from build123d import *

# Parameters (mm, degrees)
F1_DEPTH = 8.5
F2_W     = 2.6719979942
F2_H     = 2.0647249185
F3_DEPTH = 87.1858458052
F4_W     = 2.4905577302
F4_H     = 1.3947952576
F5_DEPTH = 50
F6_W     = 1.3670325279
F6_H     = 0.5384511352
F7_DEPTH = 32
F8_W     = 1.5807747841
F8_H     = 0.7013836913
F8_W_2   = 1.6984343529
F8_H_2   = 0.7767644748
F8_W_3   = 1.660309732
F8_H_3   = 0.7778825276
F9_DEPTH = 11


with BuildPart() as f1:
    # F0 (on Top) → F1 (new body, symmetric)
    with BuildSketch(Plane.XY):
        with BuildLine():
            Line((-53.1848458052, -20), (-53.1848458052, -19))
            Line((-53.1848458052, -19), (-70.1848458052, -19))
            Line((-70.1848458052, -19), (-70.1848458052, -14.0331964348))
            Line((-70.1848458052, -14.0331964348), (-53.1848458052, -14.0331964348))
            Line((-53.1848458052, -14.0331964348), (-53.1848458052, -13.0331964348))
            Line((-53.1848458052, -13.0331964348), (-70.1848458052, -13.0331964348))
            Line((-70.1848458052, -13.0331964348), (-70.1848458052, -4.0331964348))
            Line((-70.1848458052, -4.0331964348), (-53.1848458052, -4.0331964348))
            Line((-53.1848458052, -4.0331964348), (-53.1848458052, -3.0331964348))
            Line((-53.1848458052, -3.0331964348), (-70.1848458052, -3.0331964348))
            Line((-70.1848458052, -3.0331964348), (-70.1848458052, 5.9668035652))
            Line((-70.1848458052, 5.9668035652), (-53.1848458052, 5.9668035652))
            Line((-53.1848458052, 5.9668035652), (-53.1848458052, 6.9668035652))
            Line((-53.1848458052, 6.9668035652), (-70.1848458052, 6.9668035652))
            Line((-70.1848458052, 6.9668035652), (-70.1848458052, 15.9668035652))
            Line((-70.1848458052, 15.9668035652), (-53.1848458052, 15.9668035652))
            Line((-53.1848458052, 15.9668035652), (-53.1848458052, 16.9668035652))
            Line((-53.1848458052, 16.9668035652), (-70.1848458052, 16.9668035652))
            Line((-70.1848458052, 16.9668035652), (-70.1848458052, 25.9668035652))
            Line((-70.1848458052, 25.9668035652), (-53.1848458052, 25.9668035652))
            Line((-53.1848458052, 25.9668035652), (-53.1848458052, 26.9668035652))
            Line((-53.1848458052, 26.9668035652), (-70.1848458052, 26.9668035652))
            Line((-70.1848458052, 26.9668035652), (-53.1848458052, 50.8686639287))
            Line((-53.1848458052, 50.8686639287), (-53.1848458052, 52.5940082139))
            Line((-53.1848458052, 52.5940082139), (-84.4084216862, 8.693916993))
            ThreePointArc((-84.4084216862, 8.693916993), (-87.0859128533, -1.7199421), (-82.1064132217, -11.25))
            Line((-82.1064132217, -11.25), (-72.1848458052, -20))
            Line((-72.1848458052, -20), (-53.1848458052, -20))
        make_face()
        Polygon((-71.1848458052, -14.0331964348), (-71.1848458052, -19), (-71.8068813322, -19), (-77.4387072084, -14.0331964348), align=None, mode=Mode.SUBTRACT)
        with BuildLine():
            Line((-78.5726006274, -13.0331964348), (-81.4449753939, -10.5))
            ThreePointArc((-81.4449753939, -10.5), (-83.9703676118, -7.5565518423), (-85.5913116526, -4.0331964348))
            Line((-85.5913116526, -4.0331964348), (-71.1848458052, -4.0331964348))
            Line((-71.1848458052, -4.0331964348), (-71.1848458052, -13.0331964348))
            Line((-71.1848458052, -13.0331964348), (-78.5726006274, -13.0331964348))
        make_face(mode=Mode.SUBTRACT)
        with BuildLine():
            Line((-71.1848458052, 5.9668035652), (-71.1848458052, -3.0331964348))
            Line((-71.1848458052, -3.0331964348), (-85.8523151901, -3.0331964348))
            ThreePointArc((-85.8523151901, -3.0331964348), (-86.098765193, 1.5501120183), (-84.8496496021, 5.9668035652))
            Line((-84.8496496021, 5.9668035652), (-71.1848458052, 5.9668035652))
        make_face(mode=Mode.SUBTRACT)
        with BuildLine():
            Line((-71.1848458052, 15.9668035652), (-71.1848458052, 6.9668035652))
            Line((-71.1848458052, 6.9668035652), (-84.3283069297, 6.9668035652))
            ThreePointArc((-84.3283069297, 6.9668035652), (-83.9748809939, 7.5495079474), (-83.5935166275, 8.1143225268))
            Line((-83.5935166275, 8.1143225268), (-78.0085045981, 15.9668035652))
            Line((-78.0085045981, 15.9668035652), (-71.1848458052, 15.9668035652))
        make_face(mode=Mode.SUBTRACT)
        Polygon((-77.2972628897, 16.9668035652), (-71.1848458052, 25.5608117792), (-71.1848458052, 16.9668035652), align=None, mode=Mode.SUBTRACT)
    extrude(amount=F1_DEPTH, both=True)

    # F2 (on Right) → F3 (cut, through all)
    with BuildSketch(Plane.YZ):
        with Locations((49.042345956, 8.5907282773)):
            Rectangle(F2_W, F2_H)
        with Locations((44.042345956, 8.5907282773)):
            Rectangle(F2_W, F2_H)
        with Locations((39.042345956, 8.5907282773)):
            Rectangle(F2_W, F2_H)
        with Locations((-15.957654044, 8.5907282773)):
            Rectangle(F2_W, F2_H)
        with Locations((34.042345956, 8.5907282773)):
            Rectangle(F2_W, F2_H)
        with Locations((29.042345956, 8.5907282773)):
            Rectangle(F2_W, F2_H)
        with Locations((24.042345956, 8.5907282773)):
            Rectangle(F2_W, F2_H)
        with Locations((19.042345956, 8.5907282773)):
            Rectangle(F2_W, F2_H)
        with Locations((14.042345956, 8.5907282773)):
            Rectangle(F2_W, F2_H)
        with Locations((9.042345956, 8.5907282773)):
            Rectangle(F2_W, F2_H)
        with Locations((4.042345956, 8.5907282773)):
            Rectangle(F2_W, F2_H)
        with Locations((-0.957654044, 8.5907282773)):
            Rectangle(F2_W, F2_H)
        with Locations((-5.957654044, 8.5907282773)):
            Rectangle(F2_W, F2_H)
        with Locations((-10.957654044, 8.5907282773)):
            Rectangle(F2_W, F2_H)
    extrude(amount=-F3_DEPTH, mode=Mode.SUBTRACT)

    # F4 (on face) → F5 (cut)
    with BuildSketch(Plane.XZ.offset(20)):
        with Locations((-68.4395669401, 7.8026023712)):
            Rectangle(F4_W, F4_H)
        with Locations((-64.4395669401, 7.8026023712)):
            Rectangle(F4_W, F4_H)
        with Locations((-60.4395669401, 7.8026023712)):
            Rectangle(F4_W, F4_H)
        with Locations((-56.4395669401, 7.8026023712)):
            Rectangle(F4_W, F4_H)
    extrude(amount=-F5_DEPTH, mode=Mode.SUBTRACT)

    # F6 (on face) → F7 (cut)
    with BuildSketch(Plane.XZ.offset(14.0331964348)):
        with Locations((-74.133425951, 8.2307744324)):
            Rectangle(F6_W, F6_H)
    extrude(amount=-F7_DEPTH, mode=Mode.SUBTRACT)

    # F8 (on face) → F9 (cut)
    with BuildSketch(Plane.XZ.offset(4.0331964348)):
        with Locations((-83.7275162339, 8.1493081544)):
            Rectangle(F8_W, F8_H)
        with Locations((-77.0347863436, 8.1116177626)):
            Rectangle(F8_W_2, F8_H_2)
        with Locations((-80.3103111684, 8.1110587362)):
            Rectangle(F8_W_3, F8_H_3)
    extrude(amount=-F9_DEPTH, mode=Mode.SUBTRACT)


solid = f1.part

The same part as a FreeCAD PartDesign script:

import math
import FreeCAD as App
import Part
import Sketcher

doc = App.newDocument("Part")
params = doc.addObject("Spreadsheet::Sheet", "Params")
for row, (alias, value) in enumerate([
    ("sketch1_radius", "15 mm"),
    ("sketch1_radius2", "14 mm"),
    ("sketch1_width", "17 mm"),
    ("sketch1_width2", "19 mm"),
    ("sketch1_height", "1 mm"),
    ("pad1_length", "17 mm"),
    ("pocket2_length", "50 mm"),
    ("pocket3_length", "32 mm"),
    ("pocket4_length", "11 mm"),
], start=1):
    params.set(f"A{row}", alias)
    params.set(f"B{row}", "=" + value)
    params.setAlias(f"B{row}", alias)

body = doc.addObject("PartDesign::Body", "Body")

sketch1 = doc.addObject("Sketcher::SketchObject", "Sketch")
body.addObject(sketch1)
sketch1.AttachmentSupport = (doc.XY_Plane, [""])
sketch1.MapMode = "FlatFace"
sketch1.addGeometry([
    Part.LineSegment(App.Vector(-53.184846, -20, 0), App.Vector(-53.184846, -19, 0)),
    Part.LineSegment(App.Vector(-53.184846, -19, 0), App.Vector(-70.184846, -19, 0)),
    Part.LineSegment(App.Vector(-70.184846, -19, 0), App.Vector(-70.184846, -14.033196, 0)),
    Part.LineSegment(App.Vector(-70.184846, -14.033196, 0), App.Vector(-53.184846, -14.033196, 0)),
    Part.LineSegment(App.Vector(-53.184846, -14.033196, 0), App.Vector(-53.184846, -13.033196, 0)),
    Part.LineSegment(App.Vector(-53.184846, -13.033196, 0), App.Vector(-70.184846, -13.033196, 0)),
    Part.LineSegment(App.Vector(-70.184846, -13.033196, 0), App.Vector(-70.184846, -4.033196, 0)),
    Part.LineSegment(App.Vector(-70.184846, -4.033196, 0), App.Vector(-53.184846, -4.033196, 0)),
    Part.LineSegment(App.Vector(-53.184846, -4.033196, 0), App.Vector(-53.184846, -3.033196, 0)),
    Part.LineSegment(App.Vector(-53.184846, -3.033196, 0), App.Vector(-70.184846, -3.033196, 0)),
    Part.LineSegment(App.Vector(-70.184846, -3.033196, 0), App.Vector(-70.184846, 5.966804, 0)),
    Part.LineSegment(App.Vector(-70.184846, 5.966804, 0), App.Vector(-53.184846, 5.966804, 0)),
    Part.LineSegment(App.Vector(-53.184846, 5.966804, 0), App.Vector(-53.184846, 6.966804, 0)),
    Part.LineSegment(App.Vector(-53.184846, 6.966804, 0), App.Vector(-70.184846, 6.966804, 0)),
    Part.LineSegment(App.Vector(-70.184846, 6.966804, 0), App.Vector(-70.184846, 15.966804, 0)),
    Part.LineSegment(App.Vector(-70.184846, 15.966804, 0), App.Vector(-53.184846, 15.966804, 0)),
    Part.LineSegment(App.Vector(-53.184846, 15.966804, 0), App.Vector(-53.184846, 16.966804, 0)),
    Part.LineSegment(App.Vector(-53.184846, 16.966804, 0), App.Vector(-70.184846, 16.966804, 0)),
    Part.LineSegment(App.Vector(-70.184846, 16.966804, 0), App.Vector(-70.184846, 25.966804, 0)),
    Part.LineSegment(App.Vector(-70.184846, 25.966804, 0), App.Vector(-53.184846, 25.966804, 0)),
    Part.LineSegment(App.Vector(-53.184846, 25.966804, 0), App.Vector(-53.184846, 26.966804, 0)),
    Part.LineSegment(App.Vector(-53.184846, 26.966804, 0), App.Vector(-70.184846, 26.966804, 0)),
    Part.LineSegment(App.Vector(-70.184846, 26.966804, 0), App.Vector(-53.184846, 50.868664, 0)),
    Part.LineSegment(App.Vector(-53.184846, 50.868664, 0), App.Vector(-53.184846, 52.594008, 0)),
    Part.LineSegment(App.Vector(-53.184846, 52.594008, 0), App.Vector(-84.408422, 8.693917, 0)),
    Part.ArcOfCircle(Part.Circle(App.Vector(-72.184846, 0, 0), App.Vector(0, 0, 1), 15), math.radians(144.577975), math.radians(228.590378)),
    Part.LineSegment(App.Vector(-82.106413, -11.25, 0), App.Vector(-72.184846, -20, 0)),
    Part.LineSegment(App.Vector(-72.184846, -20, 0), App.Vector(-53.184846, -20, 0)),
    Part.LineSegment(App.Vector(-71.184846, -13.033196, 0), App.Vector(-78.572601, -13.033196, 0)),
    Part.LineSegment(App.Vector(-78.572601, -13.033196, 0), App.Vector(-81.444975, -10.5, 0)),
    Part.ArcOfCircle(Part.Circle(App.Vector(-72.184846, 0, 0), App.Vector(0, 0, 1), 14), math.radians(-163.25663), math.radians(-131.409622)),
    Part.LineSegment(App.Vector(-85.591312, -4.033196, 0), App.Vector(-71.184846, -4.033196, 0)),
    Part.LineSegment(App.Vector(-71.184846, -4.033196, 0), App.Vector(-71.184846, -13.033196, 0)),
    Part.LineSegment(App.Vector(-77.438707, -14.033196, 0), App.Vector(-71.184846, -14.033196, 0)),
    Part.LineSegment(App.Vector(-71.184846, -14.033196, 0), App.Vector(-71.184846, -19, 0)),
    Part.LineSegment(App.Vector(-71.184846, -19, 0), App.Vector(-71.806881, -19, 0)),
    Part.LineSegment(App.Vector(-71.806881, -19, 0), App.Vector(-77.438707, -14.033196, 0)),
    Part.LineSegment(App.Vector(-84.84965, 5.966804, 0), App.Vector(-71.184846, 5.966804, 0)),
    Part.LineSegment(App.Vector(-71.184846, 5.966804, 0), App.Vector(-71.184846, -3.033196, 0)),
    Part.LineSegment(App.Vector(-71.184846, -3.033196, 0), App.Vector(-85.852315, -3.033196, 0)),
    Part.ArcOfCircle(Part.Circle(App.Vector(-72.184846, 0, 0), App.Vector(0, 0, 1), 14), math.radians(154.773341), math.radians(192.512751)),
    Part.LineSegment(App.Vector(-78.008505, 15.966804, 0), App.Vector(-71.184846, 15.966804, 0)),
    Part.LineSegment(App.Vector(-71.184846, 15.966804, 0), App.Vector(-71.184846, 6.966804, 0)),
    Part.LineSegment(App.Vector(-71.184846, 6.966804, 0), App.Vector(-84.328307, 6.966804, 0)),
    Part.ArcOfCircle(Part.Circle(App.Vector(-72.184846, 0, 0), App.Vector(0, 0, 1), 14), math.radians(144.577975), math.radians(150.156752)),
    Part.LineSegment(App.Vector(-83.593517, 8.114323, 0), App.Vector(-78.008505, 15.966804, 0)),
    Part.LineSegment(App.Vector(-71.184846, 16.966804, 0), App.Vector(-77.297263, 16.966804, 0)),
    Part.LineSegment(App.Vector(-77.297263, 16.966804, 0), App.Vector(-71.184846, 25.560812, 0)),
    Part.LineSegment(App.Vector(-71.184846, 25.560812, 0), App.Vector(-71.184846, 16.966804, 0)),
], False)
sketch1.addConstraint([
    Sketcher.Constraint("Coincident", 0, 2, 1, 1),
    Sketcher.Constraint("Coincident", 1, 2, 2, 1),
    Sketcher.Constraint("Coincident", 2, 2, 3, 1),
    Sketcher.Constraint("Coincident", 3, 2, 4, 1),
    Sketcher.Constraint("Coincident", 4, 2, 5, 1),
    Sketcher.Constraint("Coincident", 5, 2, 6, 1),
    Sketcher.Constraint("Coincident", 6, 2, 7, 1),
    Sketcher.Constraint("Coincident", 7, 2, 8, 1),
    Sketcher.Constraint("Coincident", 8, 2, 9, 1),
    Sketcher.Constraint("Coincident", 9, 2, 10, 1),
    Sketcher.Constraint("Coincident", 10, 2, 11, 1),
    Sketcher.Constraint("Coincident", 11, 2, 12, 1),
    Sketcher.Constraint("Coincident", 12, 2, 13, 1),
    Sketcher.Constraint("Coincident", 13, 2, 14, 1),
    Sketcher.Constraint("Coincident", 14, 2, 15, 1),
    Sketcher.Constraint("Coincident", 15, 2, 16, 1),
    Sketcher.Constraint("Coincident", 16, 2, 17, 1),
    Sketcher.Constraint("Coincident", 17, 2, 18, 1),
    Sketcher.Constraint("Coincident", 18, 2, 19, 1),
    Sketcher.Constraint("Coincident", 19, 2, 20, 1),
    Sketcher.Constraint("Coincident", 20, 2, 21, 1),
    Sketcher.Constraint("Coincident", 21, 2, 22, 1),
    Sketcher.Constraint("Coincident", 22, 2, 23, 1),
    Sketcher.Constraint("Coincident", 23, 2, 24, 1),
    Sketcher.Constraint("Tangent", 24, 2, 25, 1),
    Sketcher.Constraint("Tangent", 25, 2, 26, 1),
    Sketcher.Constraint("Coincident", 26, 2, 27, 1),
    Sketcher.Constraint("Coincident", 27, 2, 0, 1),
    Sketcher.Constraint("Coincident", 28, 2, 29, 1),
    Sketcher.Constraint("Tangent", 29, 2, 30, 2),
    Sketcher.Constraint("Coincident", 30, 1, 31, 1),
    Sketcher.Constraint("Coincident", 31, 2, 32, 1),
    Sketcher.Constraint("Coincident", 32, 2, 28, 1),
    Sketcher.Constraint("Coincident", 33, 2, 34, 1),
    Sketcher.Constraint("Coincident", 34, 2, 35, 1),
    Sketcher.Constraint("Coincident", 35, 2, 36, 1),
    Sketcher.Constraint("Coincident", 36, 2, 33, 1),
    Sketcher.Constraint("Coincident", 37, 2, 38, 1),
    Sketcher.Constraint("Coincident", 38, 2, 39, 1),
    Sketcher.Constraint("Coincident", 39, 2, 40, 2),
    Sketcher.Constraint("Coincident", 40, 1, 37, 1),
    Sketcher.Constraint("Coincident", 41, 2, 42, 1),
    Sketcher.Constraint("Coincident", 42, 2, 43, 1),
    Sketcher.Constraint("Coincident", 43, 2, 44, 2),
    Sketcher.Constraint("Tangent", 44, 1, 45, 1),
    Sketcher.Constraint("Coincident", 45, 2, 41, 1),
    Sketcher.Constraint("Coincident", 46, 2, 47, 1),
    Sketcher.Constraint("Coincident", 47, 2, 48, 1),
    Sketcher.Constraint("Coincident", 48, 2, 46, 1),
    Sketcher.Constraint("Vertical", 0),
    Sketcher.Constraint("Horizontal", 1),
    Sketcher.Constraint("Vertical", 2),
    Sketcher.Constraint("Horizontal", 3),
    Sketcher.Constraint("Vertical", 4),
    Sketcher.Constraint("Horizontal", 5),
    Sketcher.Constraint("Vertical", 6),
    Sketcher.Constraint("Horizontal", 7),
    Sketcher.Constraint("Vertical", 8),
    Sketcher.Constraint("Horizontal", 9),
    Sketcher.Constraint("Vertical", 10),
    Sketcher.Constraint("Horizontal", 11),
    Sketcher.Constraint("Vertical", 12),
    Sketcher.Constraint("Horizontal", 13),
    Sketcher.Constraint("Vertical", 14),
    Sketcher.Constraint("Horizontal", 15),
    Sketcher.Constraint("Vertical", 16),
    Sketcher.Constraint("Horizontal", 17),
    Sketcher.Constraint("Vertical", 18),
    Sketcher.Constraint("Horizontal", 19),
    Sketcher.Constraint("Vertical", 20),
    Sketcher.Constraint("Horizontal", 21),
    Sketcher.Constraint("Vertical", 23),
    Sketcher.Constraint("Horizontal", 27),
    Sketcher.Constraint("Horizontal", 28),
    Sketcher.Constraint("Horizontal", 31),
    Sketcher.Constraint("Vertical", 32),
    Sketcher.Constraint("Horizontal", 33),
    Sketcher.Constraint("Vertical", 34),
    Sketcher.Constraint("Horizontal", 35),
    Sketcher.Constraint("Horizontal", 37),
    Sketcher.Constraint("Vertical", 38),
    Sketcher.Constraint("Horizontal", 39),
    Sketcher.Constraint("Horizontal", 41),
    Sketcher.Constraint("Vertical", 42),
    Sketcher.Constraint("Horizontal", 43),
    Sketcher.Constraint("Horizontal", 46),
    Sketcher.Constraint("Vertical", 48),
    Sketcher.Constraint("Coincident", 30, 3, 25, 3),
    Sketcher.Constraint("Coincident", 40, 3, 25, 3),
    Sketcher.Constraint("Coincident", 44, 3, 25, 3),
    Sketcher.Constraint("Equal", 30, 40),
    Sketcher.Constraint("Equal", 40, 44),
    Sketcher.Constraint("PointOnObject", 25, 3, -1),
    Sketcher.Constraint("Parallel", 22, 24),
    Sketcher.Constraint("Parallel", 26, 29),
    Sketcher.Constraint("Parallel", 29, 36),
    Sketcher.Constraint("Parallel", 24, 45),
    Sketcher.Constraint("Parallel", 45, 47),
    Sketcher.Constraint("Horizontal", 5, 2, 28, 2),
    Sketcher.Constraint("Horizontal", 7, 2, 30, 1),
    Sketcher.Constraint("Horizontal", 3, 2, 33, 2),
    Sketcher.Constraint("Horizontal", 1, 2, 34, 2),
    Sketcher.Constraint("Horizontal", 11, 2, 37, 2),
    Sketcher.Constraint("Horizontal", 9, 2, 38, 2),
    Sketcher.Constraint("Horizontal", 15, 2, 41, 2),
    Sketcher.Constraint("Horizontal", 13, 2, 42, 2),
    Sketcher.Constraint("Horizontal", 17, 2, 46, 2),
    Sketcher.Constraint("Vertical", 0, 2, 3, 2),
    Sketcher.Constraint("Vertical", 2, 2, 5, 2),
    Sketcher.Constraint("Vertical", 4, 2, 7, 2),
    Sketcher.Constraint("Vertical", 6, 2, 9, 2),
    Sketcher.Constraint("Vertical", 8, 2, 11, 2),
    Sketcher.Constraint("Vertical", 10, 2, 13, 2),
    Sketcher.Constraint("Vertical", 12, 2, 15, 2),
    Sketcher.Constraint("Vertical", 14, 2, 17, 2),
    Sketcher.Constraint("Vertical", 16, 2, 19, 2),
    Sketcher.Constraint("Vertical", 18, 2, 21, 2),
    Sketcher.Constraint("Vertical", 20, 2, 22, 2),
    Sketcher.Constraint("Vertical", 44, 3, 26, 2),
    Sketcher.Constraint("Vertical", 32, 2, 33, 2),
    Sketcher.Constraint("Vertical", 34, 2, 37, 2),
    Sketcher.Constraint("Vertical", 38, 2, 41, 2),
    Sketcher.Constraint("Vertical", 42, 2, 47, 2),
    Sketcher.Constraint("Equal", 0, 4),
    Sketcher.Constraint("Equal", 4, 8),
    Sketcher.Constraint("Equal", 6, 10),
    Sketcher.Constraint("Equal", 8, 12),
    Sketcher.Constraint("Equal", 10, 14),
    Sketcher.Constraint("Equal", 12, 16),
    Sketcher.Constraint("Equal", 14, 18),
    Sketcher.Constraint("Equal", 16, 20),
    Sketcher.Constraint("Radius", 25, 15.0),
    Sketcher.Constraint("Radius", 30, 14.0),
    Sketcher.Constraint("DistanceX", 1, 2, 1, 1, 17.0),
    Sketcher.Constraint("DistanceX", 27, 1, 27, 2, 19.0),
    Sketcher.Constraint("DistanceY", 0, 1, 0, 2, 1.0),
    Sketcher.Constraint("DistanceY", 6, 1, 6, 2, 9.0),
    Sketcher.Constraint("DistanceY", 0, 2, -1, 1, 19.0),
    Sketcher.Constraint("DistanceX", 31, 2, 6, 2, 1.0),
    Sketcher.Constraint("Distance", 36, 7.509101),
    Sketcher.Constraint("DistanceX", 33, 1, 33, 2, 6.253861),
    Sketcher.Constraint("DistanceX", 41, 1, 41, 2, 6.823659),
    Sketcher.Constraint("DistanceY", 48, 2, 48, 1, 8.594008),
    Sketcher.Constraint("DistanceX", 28, 2, -1, 1, 78.572601),
])
sketch1.setExpression("Constraints[131]", "Params.sketch1_radius")
sketch1.setExpression("Constraints[132]", "Params.sketch1_radius2")
sketch1.setExpression("Constraints[133]", "Params.sketch1_width")
sketch1.setExpression("Constraints[134]", "Params.sketch1_width2")
sketch1.setExpression("Constraints[135]", "Params.sketch1_height")
pad1 = doc.addObject("PartDesign::Pad", "Pad")
body.addObject(pad1)
pad1.Profile = sketch1
pad1.setExpression("Length", "Params.pad1_length")
pad1.Midplane = True

sketch2 = doc.addObject("Sketcher::SketchObject", "Sketch001")
body.addObject(sketch2)
sketch2.AttachmentSupport = (doc.YZ_Plane, [""])
sketch2.MapMode = "FlatFace"
sketch2.addGeometry([
    Part.LineSegment(App.Vector(47.706347, 9.623091, 0), App.Vector(47.706347, 7.558366, 0)),
    Part.LineSegment(App.Vector(47.706347, 7.558366, 0), App.Vector(50.378345, 7.558366, 0)),
    Part.LineSegment(App.Vector(50.378345, 7.558366, 0), App.Vector(50.378345, 9.623091, 0)),
    Part.LineSegment(App.Vector(50.378345, 9.623091, 0), App.Vector(47.706347, 9.623091, 0)),
    Part.LineSegment(App.Vector(42.706347, 9.623091, 0), App.Vector(42.706347, 7.558366, 0)),
    Part.LineSegment(App.Vector(42.706347, 7.558366, 0), App.Vector(45.378345, 7.558366, 0)),
    Part.LineSegment(App.Vector(45.378345, 7.558366, 0), App.Vector(45.378345, 9.623091, 0)),
    Part.LineSegment(App.Vector(45.378345, 9.623091, 0), App.Vector(42.706347, 9.623091, 0)),
    Part.LineSegment(App.Vector(37.706347, 9.623091, 0), App.Vector(37.706347, 7.558366, 0)),
    Part.LineSegment(App.Vector(37.706347, 7.558366, 0), App.Vector(40.378345, 7.558366, 0)),
    Part.LineSegment(App.Vector(40.378345, 7.558366, 0), App.Vector(40.378345, 9.623091, 0)),
    Part.LineSegment(App.Vector(40.378345, 9.623091, 0), App.Vector(37.706347, 9.623091, 0)),
    Part.LineSegment(App.Vector(-17.293653, 9.623091, 0), App.Vector(-17.293653, 7.558366, 0)),
    Part.LineSegment(App.Vector(-17.293653, 7.558366, 0), App.Vector(-14.621655, 7.558366, 0)),
    Part.LineSegment(App.Vector(-14.621655, 7.558366, 0), App.Vector(-14.621655, 9.623091, 0)),
    Part.LineSegment(App.Vector(-14.621655, 9.623091, 0), App.Vector(-17.293653, 9.623091, 0)),
    Part.LineSegment(App.Vector(32.706347, 9.623091, 0), App.Vector(32.706347, 7.558366, 0)),
    Part.LineSegment(App.Vector(32.706347, 7.558366, 0), App.Vector(35.378345, 7.558366, 0)),
    Part.LineSegment(App.Vector(35.378345, 7.558366, 0), App.Vector(35.378345, 9.623091, 0)),
    Part.LineSegment(App.Vector(35.378345, 9.623091, 0), App.Vector(32.706347, 9.623091, 0)),
    Part.LineSegment(App.Vector(27.706347, 9.623091, 0), App.Vector(27.706347, 7.558366, 0)),
    Part.LineSegment(App.Vector(27.706347, 7.558366, 0), App.Vector(30.378345, 7.558366, 0)),
    Part.LineSegment(App.Vector(30.378345, 7.558366, 0), App.Vector(30.378345, 9.623091, 0)),
    Part.LineSegment(App.Vector(30.378345, 9.623091, 0), App.Vector(27.706347, 9.623091, 0)),
    Part.LineSegment(App.Vector(22.706347, 9.623091, 0), App.Vector(22.706347, 7.558366, 0)),
    Part.LineSegment(App.Vector(22.706347, 7.558366, 0), App.Vector(25.378345, 7.558366, 0)),
    Part.LineSegment(App.Vector(25.378345, 7.558366, 0), App.Vector(25.378345, 9.623091, 0)),
    Part.LineSegment(App.Vector(25.378345, 9.623091, 0), App.Vector(22.706347, 9.623091, 0)),
    Part.LineSegment(App.Vector(17.706347, 9.623091, 0), App.Vector(17.706347, 7.558366, 0)),
    Part.LineSegment(App.Vector(17.706347, 7.558366, 0), App.Vector(20.378345, 7.558366, 0)),
    Part.LineSegment(App.Vector(20.378345, 7.558366, 0), App.Vector(20.378345, 9.623091, 0)),
    Part.LineSegment(App.Vector(20.378345, 9.623091, 0), App.Vector(17.706347, 9.623091, 0)),
    Part.LineSegment(App.Vector(12.706347, 9.623091, 0), App.Vector(12.706347, 7.558366, 0)),
    Part.LineSegment(App.Vector(12.706347, 7.558366, 0), App.Vector(15.378345, 7.558366, 0)),
    Part.LineSegment(App.Vector(15.378345, 7.558366, 0), App.Vector(15.378345, 9.623091, 0)),
    Part.LineSegment(App.Vector(15.378345, 9.623091, 0), App.Vector(12.706347, 9.623091, 0)),
    Part.LineSegment(App.Vector(7.706347, 9.623091, 0), App.Vector(7.706347, 7.558366, 0)),
    Part.LineSegment(App.Vector(7.706347, 7.558366, 0), App.Vector(10.378345, 7.558366, 0)),
    Part.LineSegment(App.Vector(10.378345, 7.558366, 0), App.Vector(10.378345, 9.623091, 0)),
    Part.LineSegment(App.Vector(10.378345, 9.623091, 0), App.Vector(7.706347, 9.623091, 0)),
    Part.LineSegment(App.Vector(2.706347, 9.623091, 0), App.Vector(2.706347, 7.558366, 0)),
    Part.LineSegment(App.Vector(2.706347, 7.558366, 0), App.Vector(5.378345, 7.558366, 0)),
    Part.LineSegment(App.Vector(5.378345, 7.558366, 0), App.Vector(5.378345, 9.623091, 0)),
    Part.LineSegment(App.Vector(5.378345, 9.623091, 0), App.Vector(2.706347, 9.623091, 0)),
    Part.LineSegment(App.Vector(-2.293653, 9.623091, 0), App.Vector(-2.293653, 7.558366, 0)),
    Part.LineSegment(App.Vector(-2.293653, 7.558366, 0), App.Vector(0.378345, 7.558366, 0)),
    Part.LineSegment(App.Vector(0.378345, 7.558366, 0), App.Vector(0.378345, 9.623091, 0)),
    Part.LineSegment(App.Vector(0.378345, 9.623091, 0), App.Vector(-2.293653, 9.623091, 0)),
    Part.LineSegment(App.Vector(-7.293653, 9.623091, 0), App.Vector(-7.293653, 7.558366, 0)),
    Part.LineSegment(App.Vector(-7.293653, 7.558366, 0), App.Vector(-4.621655, 7.558366, 0)),
    Part.LineSegment(App.Vector(-4.621655, 7.558366, 0), App.Vector(-4.621655, 9.623091, 0)),
    Part.LineSegment(App.Vector(-4.621655, 9.623091, 0), App.Vector(-7.293653, 9.623091, 0)),
    Part.LineSegment(App.Vector(-12.293653, 9.623091, 0), App.Vector(-12.293653, 7.558366, 0)),
    Part.LineSegment(App.Vector(-12.293653, 7.558366, 0), App.Vector(-9.621655, 7.558366, 0)),
    Part.LineSegment(App.Vector(-9.621655, 7.558366, 0), App.Vector(-9.621655, 9.623091, 0)),
    Part.LineSegment(App.Vector(-9.621655, 9.623091, 0), App.Vector(-12.293653, 9.623091, 0)),
], False)
sketch2.addConstraint([
    Sketcher.Constraint("Coincident", 0, 2, 1, 1),
    Sketcher.Constraint("Coincident", 1, 2, 2, 1),
    Sketcher.Constraint("Coincident", 2, 2, 3, 1),
    Sketcher.Constraint("Coincident", 3, 2, 0, 1),
    Sketcher.Constraint("Coincident", 4, 2, 5, 1),
    Sketcher.Constraint("Coincident", 5, 2, 6, 1),
    Sketcher.Constraint("Coincident", 6, 2, 7, 1),
    Sketcher.Constraint("Coincident", 7, 2, 4, 1),
    Sketcher.Constraint("Coincident", 8, 2, 9, 1),
    Sketcher.Constraint("Coincident", 9, 2, 10, 1),
    Sketcher.Constraint("Coincident", 10, 2, 11, 1),
    Sketcher.Constraint("Coincident", 11, 2, 8, 1),
    Sketcher.Constraint("Coincident", 12, 2, 13, 1),
    Sketcher.Constraint("Coincident", 13, 2, 14, 1),
    Sketcher.Constraint("Coincident", 14, 2, 15, 1),
    Sketcher.Constraint("Coincident", 15, 2, 12, 1),
    Sketcher.Constraint("Coincident", 16, 2, 17, 1),
    Sketcher.Constraint("Coincident", 17, 2, 18, 1),
    Sketcher.Constraint("Coincident", 18, 2, 19, 1),
    Sketcher.Constraint("Coincident", 19, 2, 16, 1),
    Sketcher.Constraint("Coincident", 20, 2, 21, 1),
    Sketcher.Constraint("Coincident", 21, 2, 22, 1),
    Sketcher.Constraint("Coincident", 22, 2, 23, 1),
    Sketcher.Constraint("Coincident", 23, 2, 20, 1),
    Sketcher.Constraint("Coincident", 24, 2, 25, 1),
    Sketcher.Constraint("Coincident", 25, 2, 26, 1),
    Sketcher.Constraint("Coincident", 26, 2, 27, 1),
    Sketcher.Constraint("Coincident", 27, 2, 24, 1),
    Sketcher.Constraint("Coincident", 28, 2, 29, 1),
    Sketcher.Constraint("Coincident", 29, 2, 30, 1),
    Sketcher.Constraint("Coincident", 30, 2, 31, 1),
    Sketcher.Constraint("Coincident", 31, 2, 28, 1),
    Sketcher.Constraint("Coincident", 32, 2, 33, 1),
    Sketcher.Constraint("Coincident", 33, 2, 34, 1),
    Sketcher.Constraint("Coincident", 34, 2, 35, 1),
    Sketcher.Constraint("Coincident", 35, 2, 32, 1),
    Sketcher.Constraint("Coincident", 36, 2, 37, 1),
    Sketcher.Constraint("Coincident", 37, 2, 38, 1),
    Sketcher.Constraint("Coincident", 38, 2, 39, 1),
    Sketcher.Constraint("Coincident", 39, 2, 36, 1),
    Sketcher.Constraint("Coincident", 40, 2, 41, 1),
    Sketcher.Constraint("Coincident", 41, 2, 42, 1),
    Sketcher.Constraint("Coincident", 42, 2, 43, 1),
    Sketcher.Constraint("Coincident", 43, 2, 40, 1),
    Sketcher.Constraint("Coincident", 44, 2, 45, 1),
    Sketcher.Constraint("Coincident", 45, 2, 46, 1),
    Sketcher.Constraint("Coincident", 46, 2, 47, 1),
    Sketcher.Constraint("Coincident", 47, 2, 44, 1),
    Sketcher.Constraint("Coincident", 48, 2, 49, 1),
    Sketcher.Constraint("Coincident", 49, 2, 50, 1),
    Sketcher.Constraint("Coincident", 50, 2, 51, 1),
    Sketcher.Constraint("Coincident", 51, 2, 48, 1),
    Sketcher.Constraint("Coincident", 52, 2, 53, 1),
    Sketcher.Constraint("Coincident", 53, 2, 54, 1),
    Sketcher.Constraint("Coincident", 54, 2, 55, 1),
    Sketcher.Constraint("Coincident", 55, 2, 52, 1),
    Sketcher.Constraint("Vertical", 0),
    Sketcher.Constraint("Horizontal", 1),
    Sketcher.Constraint("Vertical", 2),
    Sketcher.Constraint("Horizontal", 3),
    Sketcher.Constraint("Vertical", 4),
    Sketcher.Constraint("Horizontal", 5),
    Sketcher.Constraint("Vertical", 6),
    Sketcher.Constraint("Horizontal", 7),
    Sketcher.Constraint("Vertical", 8),
    Sketcher.Constraint("Horizontal", 9),
    Sketcher.Constraint("Vertical", 10),
    Sketcher.Constraint("Horizontal", 11),
    Sketcher.Constraint("Vertical", 12),
    Sketcher.Constraint("Horizontal", 13),
    Sketcher.Constraint("Vertical", 14),
    Sketcher.Constraint("Horizontal", 15),
    Sketcher.Constraint("Vertical", 16),
    Sketcher.Constraint("Horizontal", 17),
    Sketcher.Constraint("Vertical", 18),
    Sketcher.Constraint("Horizontal", 19),
    Sketcher.Constraint("Vertical", 20),
    Sketcher.Constraint("Horizontal", 21),
    Sketcher.Constraint("Vertical", 22),
    Sketcher.Constraint("Horizontal", 23),
    Sketcher.Constraint("Vertical", 24),
    Sketcher.Constraint("Horizontal", 25),
    Sketcher.Constraint("Vertical", 26),
    Sketcher.Constraint("Horizontal", 27),
    Sketcher.Constraint("Vertical", 28),
    Sketcher.Constraint("Horizontal", 29),
    Sketcher.Constraint("Vertical", 30),
    Sketcher.Constraint("Horizontal", 31),
    Sketcher.Constraint("Vertical", 32),
    Sketcher.Constraint("Horizontal", 33),
    Sketcher.Constraint("Vertical", 34),
    Sketcher.Constraint("Horizontal", 35),
    Sketcher.Constraint("Vertical", 36),
    Sketcher.Constraint("Horizontal", 37),
    Sketcher.Constraint("Vertical", 38),
    Sketcher.Constraint("Horizontal", 39),
    Sketcher.Constraint("Vertical", 40),
    Sketcher.Constraint("Horizontal", 41),
    Sketcher.Constraint("Vertical", 42),
    Sketcher.Constraint("Horizontal", 43),
    Sketcher.Constraint("Vertical", 44),
    Sketcher.Constraint("Horizontal", 45),
    Sketcher.Constraint("Vertical", 46),
    Sketcher.Constraint("Horizontal", 47),
    Sketcher.Constraint("Vertical", 48),
    Sketcher.Constraint("Horizontal", 49),
    Sketcher.Constraint("Vertical", 50),
    Sketcher.Constraint("Horizontal", 51),
    Sketcher.Constraint("Vertical", 52),
    Sketcher.Constraint("Horizontal", 53),
    Sketcher.Constraint("Vertical", 54),
    Sketcher.Constraint("Horizontal", 55),
    Sketcher.Constraint("Horizontal", 1, 2, 4, 2),
    Sketcher.Constraint("Horizontal", 3, 2, 6, 2),
    Sketcher.Constraint("Horizontal", 5, 2, 8, 2),
    Sketcher.Constraint("Horizontal", 7, 2, 10, 2),
    Sketcher.Constraint("Horizontal", 9, 2, 12, 2),
    Sketcher.Constraint("Horizontal", 11, 2, 14, 2),
    Sketcher.Constraint("Horizontal", 13, 2, 16, 2),
    Sketcher.Constraint("Horizontal", 15, 2, 18, 2),
    Sketcher.Constraint("Horizontal", 17, 2, 20, 2),
    Sketcher.Constraint("Horizontal", 19, 2, 22, 2),
    Sketcher.Constraint("Horizontal", 21, 2, 24, 2),
    Sketcher.Constraint("Horizontal", 23, 2, 26, 2),
    Sketcher.Constraint("Horizontal", 25, 2, 28, 2),
    Sketcher.Constraint("Horizontal", 27, 2, 30, 2),
    Sketcher.Constraint("Horizontal", 29, 2, 32, 2),
    Sketcher.Constraint("Horizontal", 31, 2, 34, 2),
    Sketcher.Constraint("Horizontal", 33, 2, 36, 2),
    Sketcher.Constraint("Horizontal", 35, 2, 38, 2),
    Sketcher.Constraint("Horizontal", 37, 2, 40, 2),
    Sketcher.Constraint("Horizontal", 39, 2, 42, 2),
    Sketcher.Constraint("Horizontal", 41, 2, 44, 2),
    Sketcher.Constraint("Horizontal", 43, 2, 46, 2),
    Sketcher.Constraint("Horizontal", 45, 2, 48, 2),
    Sketcher.Constraint("Horizontal", 47, 2, 50, 2),
    Sketcher.Constraint("Horizontal", 49, 2, 52, 2),
    Sketcher.Constraint("Horizontal", 51, 2, 54, 2),
    Sketcher.Constraint("Equal", 3, 5),
    Sketcher.Constraint("Equal", 7, 9),
    Sketcher.Constraint("Equal", 11, 13),
    Sketcher.Constraint("Equal", 15, 17),
    Sketcher.Constraint("Equal", 19, 21),
    Sketcher.Constraint("Equal", 23, 25),
    Sketcher.Constraint("Equal", 27, 29),
    Sketcher.Constraint("Equal", 31, 33),
    Sketcher.Constraint("Equal", 35, 37),
    Sketcher.Constraint("Equal", 39, 41),
    Sketcher.Constraint("Equal", 43, 45),
    Sketcher.Constraint("Equal", 47, 49),
    Sketcher.Constraint("Equal", 51, 53),
    Sketcher.Constraint("DistanceX", 4, 2, 0, 2, 5.0),
    Sketcher.Constraint("DistanceX", 8, 2, 4, 2, 5.0),
    Sketcher.Constraint("DistanceX", 12, 2, 8, 2, 55.0),
    Sketcher.Constraint("DistanceX", 16, 2, 8, 2, 5.0),
    Sketcher.Constraint("DistanceX", 20, 2, 16, 2, 5.0),
    Sketcher.Constraint("DistanceX", 24, 2, 20, 2, 5.0),
    Sketcher.Constraint("DistanceX", 28, 2, 24, 2, 5.0),
    Sketcher.Constraint("DistanceX", 32, 2, 28, 2, 5.0),
    Sketcher.Constraint("DistanceX", 36, 2, 32, 2, 5.0),
    Sketcher.Constraint("DistanceX", 40, 2, 36, 2, 5.0),
    Sketcher.Constraint("DistanceX", 44, 2, 40, 2, 5.0),
    Sketcher.Constraint("DistanceX", 48, 2, 44, 2, 5.0),
    Sketcher.Constraint("DistanceX", 12, 2, 52, 2, 5.0),
    Sketcher.Constraint("DistanceX", 1, 1, 1, 2, 2.671998),
    Sketcher.Constraint("DistanceY", 0, 2, 0, 1, 2.064725),
    Sketcher.Constraint("DistanceY", -1, 1, 2, 2, 9.623091),
    Sketcher.Constraint("DistanceX", -1, 1, 0, 2, 47.706347),
])
pocket1 = doc.addObject("PartDesign::Pocket", "Pocket")
body.addObject(pocket1)
pocket1.Profile = sketch2
pocket1.Type = "ThroughAll"

sketch3 = doc.addObject("Sketcher::SketchObject", "Sketch002")
body.addObject(sketch3)
sketch3.AttachmentSupport = (doc.XZ_Plane, [""])
sketch3.MapMode = "FlatFace"
sketch3.AttachmentOffset = App.Placement(App.Vector(0, 0, 20), App.Rotation())
sketch3.addGeometry([
    Part.LineSegment(App.Vector(-69.684846, 8.5, 0), App.Vector(-69.684846, 7.105205, 0)),
    Part.LineSegment(App.Vector(-69.684846, 7.105205, 0), App.Vector(-67.194288, 7.105205, 0)),
    Part.LineSegment(App.Vector(-67.194288, 7.105205, 0), App.Vector(-67.194288, 8.5, 0)),
    Part.LineSegment(App.Vector(-67.194288, 8.5, 0), App.Vector(-69.684846, 8.5, 0)),
    Part.LineSegment(App.Vector(-65.684846, 8.5, 0), App.Vector(-65.684846, 7.105205, 0)),
    Part.LineSegment(App.Vector(-65.684846, 7.105205, 0), App.Vector(-63.194288, 7.105205, 0)),
    Part.LineSegment(App.Vector(-63.194288, 7.105205, 0), App.Vector(-63.194288, 8.5, 0)),
    Part.LineSegment(App.Vector(-63.194288, 8.5, 0), App.Vector(-65.684846, 8.5, 0)),
    Part.LineSegment(App.Vector(-61.684846, 8.5, 0), App.Vector(-61.684846, 7.105205, 0)),
    Part.LineSegment(App.Vector(-61.684846, 7.105205, 0), App.Vector(-59.194288, 7.105205, 0)),
    Part.LineSegment(App.Vector(-59.194288, 7.105205, 0), App.Vector(-59.194288, 8.5, 0)),
    Part.LineSegment(App.Vector(-59.194288, 8.5, 0), App.Vector(-61.684846, 8.5, 0)),
    Part.LineSegment(App.Vector(-57.684846, 8.5, 0), App.Vector(-57.684846, 7.105205, 0)),
    Part.LineSegment(App.Vector(-57.684846, 7.105205, 0), App.Vector(-55.194288, 7.105205, 0)),
    Part.LineSegment(App.Vector(-55.194288, 7.105205, 0), App.Vector(-55.194288, 8.5, 0)),
    Part.LineSegment(App.Vector(-55.194288, 8.5, 0), App.Vector(-57.684846, 8.5, 0)),
], False)
sketch3.addConstraint([
    Sketcher.Constraint("Coincident", 0, 2, 1, 1),
    Sketcher.Constraint("Coincident", 1, 2, 2, 1),
    Sketcher.Constraint("Coincident", 2, 2, 3, 1),
    Sketcher.Constraint("Coincident", 3, 2, 0, 1),
    Sketcher.Constraint("Coincident", 4, 2, 5, 1),
    Sketcher.Constraint("Coincident", 5, 2, 6, 1),
    Sketcher.Constraint("Coincident", 6, 2, 7, 1),
    Sketcher.Constraint("Coincident", 7, 2, 4, 1),
    Sketcher.Constraint("Coincident", 8, 2, 9, 1),
    Sketcher.Constraint("Coincident", 9, 2, 10, 1),
    Sketcher.Constraint("Coincident", 10, 2, 11, 1),
    Sketcher.Constraint("Coincident", 11, 2, 8, 1),
    Sketcher.Constraint("Coincident", 12, 2, 13, 1),
    Sketcher.Constraint("Coincident", 13, 2, 14, 1),
    Sketcher.Constraint("Coincident", 14, 2, 15, 1),
    Sketcher.Constraint("Coincident", 15, 2, 12, 1),
    Sketcher.Constraint("Vertical", 0),
    Sketcher.Constraint("Horizontal", 1),
    Sketcher.Constraint("Vertical", 2),
    Sketcher.Constraint("Horizontal", 3),
    Sketcher.Constraint("Vertical", 4),
    Sketcher.Constraint("Horizontal", 5),
    Sketcher.Constraint("Vertical", 6),
    Sketcher.Constraint("Horizontal", 7),
    Sketcher.Constraint("Vertical", 8),
    Sketcher.Constraint("Horizontal", 9),
    Sketcher.Constraint("Vertical", 10),
    Sketcher.Constraint("Horizontal", 11),
    Sketcher.Constraint("Vertical", 12),
    Sketcher.Constraint("Horizontal", 13),
    Sketcher.Constraint("Vertical", 14),
    Sketcher.Constraint("Horizontal", 15),
    Sketcher.Constraint("Horizontal", 1, 2, 4, 2),
    Sketcher.Constraint("Horizontal", 3, 2, 6, 2),
    Sketcher.Constraint("Horizontal", 5, 2, 8, 2),
    Sketcher.Constraint("Horizontal", 7, 2, 10, 2),
    Sketcher.Constraint("Horizontal", 9, 2, 12, 2),
    Sketcher.Constraint("Horizontal", 11, 2, 14, 2),
    Sketcher.Constraint("Equal", 3, 5),
    Sketcher.Constraint("Equal", 7, 9),
    Sketcher.Constraint("Equal", 11, 13),
    Sketcher.Constraint("DistanceX", 0, 2, 4, 2, 4.0),
    Sketcher.Constraint("DistanceX", 4, 2, 8, 2, 4.0),
    Sketcher.Constraint("DistanceX", 8, 2, 12, 2, 4.0),
    Sketcher.Constraint("DistanceY", -1, 1, 2, 2, 8.5),
    Sketcher.Constraint("DistanceX", 1, 1, 1, 2, 2.490558),
    Sketcher.Constraint("DistanceY", 0, 2, 0, 1, 1.394795),
    Sketcher.Constraint("DistanceX", 1, 2, -1, 1, 67.194288),
])
pocket2 = doc.addObject("PartDesign::Pocket", "Pocket001")
body.addObject(pocket2)
pocket2.Profile = sketch3
pocket2.setExpression("Length", "Params.pocket2_length")

sketch4 = doc.addObject("Sketcher::SketchObject", "Sketch003")
body.addObject(sketch4)
sketch4.AttachmentSupport = (doc.XZ_Plane, [""])
sketch4.MapMode = "FlatFace"
sketch4.AttachmentOffset = App.Placement(App.Vector(0, 0, 14.033196), App.Rotation())
sketch4.addGeometry([
    Part.LineSegment(App.Vector(-74.816942, 8.5, 0), App.Vector(-74.816942, 7.961549, 0)),
    Part.LineSegment(App.Vector(-74.816942, 7.961549, 0), App.Vector(-73.44991, 7.961549, 0)),
    Part.LineSegment(App.Vector(-73.44991, 7.961549, 0), App.Vector(-73.44991, 8.5, 0)),
    Part.LineSegment(App.Vector(-73.44991, 8.5, 0), App.Vector(-74.816942, 8.5, 0)),
], False)
sketch4.addConstraint([
    Sketcher.Constraint("Coincident", 0, 2, 1, 1),
    Sketcher.Constraint("Coincident", 1, 2, 2, 1),
    Sketcher.Constraint("Coincident", 2, 2, 3, 1),
    Sketcher.Constraint("Coincident", 3, 2, 0, 1),
    Sketcher.Constraint("Vertical", 0),
    Sketcher.Constraint("Horizontal", 1),
    Sketcher.Constraint("Vertical", 2),
    Sketcher.Constraint("Horizontal", 3),
    Sketcher.Constraint("DistanceY", -1, 1, 2, 2, 8.5),
    Sketcher.Constraint("DistanceY", 0, 2, 0, 1, 0.538451),
    Sketcher.Constraint("DistanceX", 1, 1, 1, 2, 1.367033),
    Sketcher.Constraint("DistanceX", 1, 2, -1, 1, 73.44991),
])
pocket3 = doc.addObject("PartDesign::Pocket", "Pocket002")
body.addObject(pocket3)
pocket3.Profile = sketch4
pocket3.setExpression("Length", "Params.pocket3_length")

sketch5 = doc.addObject("Sketcher::SketchObject", "Sketch004")
body.addObject(sketch5)
sketch5.AttachmentSupport = (doc.XZ_Plane, [""])
sketch5.MapMode = "FlatFace"
sketch5.AttachmentOffset = App.Placement(App.Vector(0, 0, 4.033196), App.Rotation())
sketch5.addGeometry([
    Part.LineSegment(App.Vector(-84.517904, 8.5, 0), App.Vector(-84.517904, 7.798616, 0)),
    Part.LineSegment(App.Vector(-84.517904, 7.798616, 0), App.Vector(-82.937129, 7.798616, 0)),
    Part.LineSegment(App.Vector(-82.937129, 7.798616, 0), App.Vector(-82.937129, 8.5, 0)),
    Part.LineSegment(App.Vector(-82.937129, 8.5, 0), App.Vector(-84.517904, 8.5, 0)),
    Part.LineSegment(App.Vector(-77.884004, 8.5, 0), App.Vector(-77.884004, 7.723236, 0)),
    Part.LineSegment(App.Vector(-77.884004, 7.723236, 0), App.Vector(-76.185569, 7.723236, 0)),
    Part.LineSegment(App.Vector(-76.185569, 7.723236, 0), App.Vector(-76.185569, 8.5, 0)),
    Part.LineSegment(App.Vector(-76.185569, 8.5, 0), App.Vector(-77.884004, 8.5, 0)),
    Part.LineSegment(App.Vector(-81.140466, 8.5, 0), App.Vector(-81.140466, 7.722117, 0)),
    Part.LineSegment(App.Vector(-81.140466, 7.722117, 0), App.Vector(-79.480156, 7.722117, 0)),
    Part.LineSegment(App.Vector(-79.480156, 7.722117, 0), App.Vector(-79.480156, 8.5, 0)),
    Part.LineSegment(App.Vector(-79.480156, 8.5, 0), App.Vector(-81.140466, 8.5, 0)),
], False)
sketch5.addConstraint([
    Sketcher.Constraint("Coincident", 0, 2, 1, 1),
    Sketcher.Constraint("Coincident", 1, 2, 2, 1),
    Sketcher.Constraint("Coincident", 2, 2, 3, 1),
    Sketcher.Constraint("Coincident", 3, 2, 0, 1),
    Sketcher.Constraint("Coincident", 4, 2, 5, 1),
    Sketcher.Constraint("Coincident", 5, 2, 6, 1),
    Sketcher.Constraint("Coincident", 6, 2, 7, 1),
    Sketcher.Constraint("Coincident", 7, 2, 4, 1),
    Sketcher.Constraint("Coincident", 8, 2, 9, 1),
    Sketcher.Constraint("Coincident", 9, 2, 10, 1),
    Sketcher.Constraint("Coincident", 10, 2, 11, 1),
    Sketcher.Constraint("Coincident", 11, 2, 8, 1),
    Sketcher.Constraint("Vertical", 0),
    Sketcher.Constraint("Horizontal", 1),
    Sketcher.Constraint("Vertical", 2),
    Sketcher.Constraint("Horizontal", 3),
    Sketcher.Constraint("Vertical", 4),
    Sketcher.Constraint("Horizontal", 5),
    Sketcher.Constraint("Vertical", 6),
    Sketcher.Constraint("Horizontal", 7),
    Sketcher.Constraint("Vertical", 8),
    Sketcher.Constraint("Horizontal", 9),
    Sketcher.Constraint("Vertical", 10),
    Sketcher.Constraint("Horizontal", 11),
    Sketcher.Constraint("Horizontal", 3, 2, 6, 2),
    Sketcher.Constraint("Horizontal", 7, 2, 10, 2),
    Sketcher.Constraint("DistanceY", -1, 1, 2, 2, 8.5),
    Sketcher.Constraint("DistanceX", 9, 1, 9, 2, 1.66031),
    Sketcher.Constraint("DistanceX", 0, 2, 4, 2, 6.6339),
    Sketcher.Constraint("DistanceY", 8, 2, 1, 2, 0.076499),
    Sketcher.Constraint("DistanceX", 1, 1, 1, 2, 1.580775),
    Sketcher.Constraint("DistanceX", 5, 1, 5, 2, 1.698434),
    Sketcher.Constraint("DistanceY", 0, 2, 0, 1, 0.701384),
    Sketcher.Constraint("DistanceY", 4, 2, 4, 1, 0.776764),
    Sketcher.Constraint("DistanceX", 1, 2, -1, 1, 82.937129),
    Sketcher.Constraint("DistanceX", 8, 2, -1, 1, 81.140466),
])
pocket4 = doc.addObject("PartDesign::Pocket", "Pocket003")
body.addObject(pocket4)
pocket4.Profile = sketch5
pocket4.setExpression("Length", "Params.pocket4_length")

doc.recompute()
